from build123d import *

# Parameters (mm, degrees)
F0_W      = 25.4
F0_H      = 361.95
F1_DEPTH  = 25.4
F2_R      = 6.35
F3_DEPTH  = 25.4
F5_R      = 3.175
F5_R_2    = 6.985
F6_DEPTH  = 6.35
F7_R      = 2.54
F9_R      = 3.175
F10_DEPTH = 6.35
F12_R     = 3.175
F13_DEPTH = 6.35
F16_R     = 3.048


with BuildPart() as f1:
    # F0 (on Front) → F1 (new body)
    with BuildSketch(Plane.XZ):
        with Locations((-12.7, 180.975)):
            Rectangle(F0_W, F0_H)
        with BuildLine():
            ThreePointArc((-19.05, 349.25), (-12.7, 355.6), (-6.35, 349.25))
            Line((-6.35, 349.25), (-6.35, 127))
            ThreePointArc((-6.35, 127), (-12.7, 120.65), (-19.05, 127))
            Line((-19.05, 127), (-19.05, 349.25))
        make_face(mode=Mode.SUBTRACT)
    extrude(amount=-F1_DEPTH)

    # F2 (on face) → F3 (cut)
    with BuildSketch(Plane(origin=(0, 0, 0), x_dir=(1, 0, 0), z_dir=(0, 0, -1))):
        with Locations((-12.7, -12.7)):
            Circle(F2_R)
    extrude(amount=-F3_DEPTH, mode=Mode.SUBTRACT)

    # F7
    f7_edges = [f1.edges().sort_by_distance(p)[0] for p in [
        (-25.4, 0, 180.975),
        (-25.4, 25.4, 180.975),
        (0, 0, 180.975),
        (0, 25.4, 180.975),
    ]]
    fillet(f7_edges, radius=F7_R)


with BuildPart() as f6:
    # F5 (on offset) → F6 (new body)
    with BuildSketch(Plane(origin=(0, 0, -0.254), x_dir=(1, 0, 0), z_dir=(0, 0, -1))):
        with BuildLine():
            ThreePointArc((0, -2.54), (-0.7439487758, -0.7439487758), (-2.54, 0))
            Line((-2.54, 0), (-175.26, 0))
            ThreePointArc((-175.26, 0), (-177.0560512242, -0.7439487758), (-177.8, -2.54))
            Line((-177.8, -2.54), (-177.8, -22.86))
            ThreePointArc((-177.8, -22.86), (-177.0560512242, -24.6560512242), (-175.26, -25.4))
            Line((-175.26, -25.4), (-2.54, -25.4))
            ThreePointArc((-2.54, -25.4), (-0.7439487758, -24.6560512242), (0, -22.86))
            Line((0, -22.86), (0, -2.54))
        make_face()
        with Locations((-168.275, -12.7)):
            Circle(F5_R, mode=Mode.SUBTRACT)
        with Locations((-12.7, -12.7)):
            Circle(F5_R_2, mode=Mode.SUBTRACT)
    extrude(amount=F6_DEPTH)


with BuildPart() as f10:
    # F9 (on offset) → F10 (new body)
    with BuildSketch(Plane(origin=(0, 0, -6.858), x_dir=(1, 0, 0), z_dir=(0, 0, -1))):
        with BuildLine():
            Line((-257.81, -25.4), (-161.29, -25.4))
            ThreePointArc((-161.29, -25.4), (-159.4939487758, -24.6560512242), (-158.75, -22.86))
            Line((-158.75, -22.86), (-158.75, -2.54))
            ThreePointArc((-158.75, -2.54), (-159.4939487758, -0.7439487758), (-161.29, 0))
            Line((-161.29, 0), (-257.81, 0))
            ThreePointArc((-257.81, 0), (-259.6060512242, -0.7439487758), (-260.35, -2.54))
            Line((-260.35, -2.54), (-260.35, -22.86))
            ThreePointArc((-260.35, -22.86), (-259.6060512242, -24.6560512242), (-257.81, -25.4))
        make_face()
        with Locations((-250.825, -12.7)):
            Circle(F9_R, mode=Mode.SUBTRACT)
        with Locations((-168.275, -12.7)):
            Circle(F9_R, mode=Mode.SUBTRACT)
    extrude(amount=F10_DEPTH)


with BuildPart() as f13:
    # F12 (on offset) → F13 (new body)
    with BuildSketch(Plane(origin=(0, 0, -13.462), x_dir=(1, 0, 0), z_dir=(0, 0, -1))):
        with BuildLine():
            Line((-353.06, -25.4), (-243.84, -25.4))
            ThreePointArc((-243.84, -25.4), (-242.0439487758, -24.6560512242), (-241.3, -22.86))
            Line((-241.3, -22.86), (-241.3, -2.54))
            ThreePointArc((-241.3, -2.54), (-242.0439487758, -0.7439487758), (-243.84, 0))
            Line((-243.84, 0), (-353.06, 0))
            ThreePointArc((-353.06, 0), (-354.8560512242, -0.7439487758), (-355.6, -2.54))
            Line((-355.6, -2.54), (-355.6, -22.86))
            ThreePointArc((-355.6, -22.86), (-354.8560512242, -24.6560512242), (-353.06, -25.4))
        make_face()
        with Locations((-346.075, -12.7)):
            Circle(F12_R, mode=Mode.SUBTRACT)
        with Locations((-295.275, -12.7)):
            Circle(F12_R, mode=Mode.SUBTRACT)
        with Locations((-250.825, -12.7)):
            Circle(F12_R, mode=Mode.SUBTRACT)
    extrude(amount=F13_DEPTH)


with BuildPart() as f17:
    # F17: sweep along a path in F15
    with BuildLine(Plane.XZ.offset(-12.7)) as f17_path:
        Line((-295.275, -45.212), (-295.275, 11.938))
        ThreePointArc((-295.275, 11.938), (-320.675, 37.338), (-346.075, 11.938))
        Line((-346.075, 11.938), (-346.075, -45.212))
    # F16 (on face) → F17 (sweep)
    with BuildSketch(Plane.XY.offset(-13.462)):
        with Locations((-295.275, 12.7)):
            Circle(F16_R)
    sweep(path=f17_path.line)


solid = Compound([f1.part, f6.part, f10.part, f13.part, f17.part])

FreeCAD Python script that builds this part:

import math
import FreeCAD as App
import Part
import Sketcher
Q = App.Units.Quantity


def edges_at(feature, points):
    """Names of the edges that pass closest to the given points."""
    edges = feature.Shape.Edges
    near = lambda p: min(range(len(edges)), key=lambda i: edges[i].distToShape(Part.Vertex(*p))[0])
    return sorted({f"Edge{near(p) + 1}" for p in points})


def add_polygon(sketch, points):
    """Adds a closed chain of lines whose ends are joined by coincident constraints."""
    first, n = sketch.GeometryCount, len(points)
    for a, b in zip(points, points[1:] + points[:1]):
        sketch.addGeometry(Part.LineSegment(App.Vector(*a, 0), App.Vector(*b, 0)), False)
    for i in range(n):
        sketch.addConstraint(Sketcher.Constraint("Coincident", first + i, 2, first + (i + 1) % n, 1))

doc = App.newDocument("Part")
body = doc.addObject("PartDesign::Body", "Body")

sketch1 = body.newObject("Sketcher::SketchObject", "Sketch")
sketch1.AttachmentSupport = (doc.getObject("XZ_Plane"), [""])
sketch1.MapMode = "FlatFace"
add_polygon(sketch1, [(-25.4, 361.95), (-25.4, 0), (0, 0), (0, 361.95)])
sketch1.addGeometry(Part.LineSegment(App.Vector(-19.05, 127, 0), App.Vector(-19.05, 349.25, 0)), False)
sketch1.addGeometry(Part.ArcOfCircle(Part.Circle(App.Vector(-12.7, 349.25, 0), App.Vector(0, 0, 1), 6.35), math.radians(0), math.radians(180)), False)
sketch1.addGeometry(Part.LineSegment(App.Vector(-6.35, 349.25, 0), App.Vector(-6.35, 127, 0)), False)
sketch1.addGeometry(Part.ArcOfCircle(Part.Circle(App.Vector(-12.7, 127, 0), App.Vector(0, 0, 1), 6.35), math.radians(180), math.radians(360)), False)
sketch1.addConstraint([
    Sketcher.Constraint("Tangent", 4, 2, 5, 2),
    Sketcher.Constraint("Tangent", 5, 1, 6, 1),
    Sketcher.Constraint("Tangent", 6, 2, 7, 2),
    Sketcher.Constraint("Tangent", 7, 1, 4, 1),
    Sketcher.Constraint("Vertical", 0),
    Sketcher.Constraint("Horizontal", 1),
    Sketcher.Constraint("Vertical", 2),
    Sketcher.Constraint("Horizontal", 3),
    Sketcher.Constraint("Vertical", 4),
    Sketcher.Constraint("Vertical", 6),
    Sketcher.Constraint("Coincident", 1, 2, -1, 1),
    Sketcher.Constraint("DistanceX", 1, 1, 1, 2, Q("1 in")),
    Sketcher.Constraint("Radius", 5, Q("0.25 in")),
    Sketcher.Constraint("DistanceY", -1, 1, 7, 3, Q("5 in")),
    Sketcher.Constraint("DistanceY", 0, 2, 0, 1, Q("14.25 in")),
    Sketcher.Constraint("DistanceY", 4, 1, 4, 2, Q("8.75 in")),
    Sketcher.Constraint("DistanceX", 5, 3, -1, 1, Q("0.5 in")),
])
pad1 = body.newObject("PartDesign::Pad", "Pad")
pad1.Profile = sketch1
pad1.Length = Q("1 in")
pad1.Reversed = True

sketch2 = body.newObject("Sketcher::SketchObject", "Sketch001")
sketch2.AttachmentSupport = (doc.getObject("XY_Plane"), [""])
sketch2.MapMode = "FlatFace"
sketch2.addGeometry(Part.Circle(App.Vector(-12.7, 12.7, 0), App.Vector(0, 0, 1), 6.35), False)
sketch2.addConstraint([
    Sketcher.Constraint("Diameter", 0, Q("0.5 in")),
    Sketcher.Constraint("DistanceX", 0, 3, -1, 1, Q("0.5 in")),
    Sketcher.Constraint("DistanceY", -1, 1, 0, 3, Q("0.5 in")),
])
pocket1 = body.newObject("PartDesign::Pocket", "Pocket")
pocket1.Profile = sketch2
pocket1.Length = Q("1 in")
pocket1.Reversed = True
doc.recompute()

fillet = body.newObject("PartDesign::Fillet", "Fillet")
fillet.Base = (pocket1, edges_at(pocket1, [
    (-25.4, 0, 180.975),
    (-25.4, 25.4, 180.975),
    (0, 0, 180.975),
    (0, 25.4, 180.975),
]))
fillet.Radius = Q("0.1 in")
body2 = doc.addObject("PartDesign::Body", "Body001")

sketch3 = body2.newObject("Sketcher::SketchObject", "Sketch002")
sketch3.AttachmentSupport = (doc.getObject("XY_Plane001"), [""])
sketch3.MapMode = "FlatFace"
sketch3.AttachmentOffset = App.Placement(App.Vector(0, 0, -0.01 * 25.4), App.Rotation())
sketch3.addGeometry([
    Part.ArcOfCircle(Part.Circle(App.Vector(-2.54, 2.54, 0), App.Vector(0, 0, 1), 2.54), math.radians(-90), math.radians(0)),
    Part.LineSegment(App.Vector(-2.54, 0, 0), App.Vector(-175.26, 0, 0)),
    Part.ArcOfCircle(Part.Circle(App.Vector(-175.26, 2.54, 0), App.Vector(0, 0, 1), 2.54), math.radians(180), math.radians(270)),
    Part.LineSegment(App.Vector(-177.8, 2.54, 0), App.Vector(-177.8, 22.86, 0)),
    Part.ArcOfCircle(Part.Circle(App.Vector(-175.26, 22.86, 0), App.Vector(0, 0, 1), 2.54), math.radians(90), math.radians(180)),
    Part.LineSegment(App.Vector(-175.26, 25.4, 0), App.Vector(-2.54, 25.4, 0)),
    Part.ArcOfCircle(Part.Circle(App.Vector(-2.54, 22.86, 0), App.Vector(0, 0, 1), 2.54), math.radians(0), math.radians(90)),
    Part.LineSegment(App.Vector(0, 22.86, 0), App.Vector(0, 2.54, 0)),
    Part.Circle(App.Vector(-168.275, 12.7, 0), App.Vector(0, 0, 1), 3.175),
    Part.Circle(App.Vector(-12.7, 12.7, 0), App.Vector(0, 0, 1), 6.985),
], False)
sketch3.addConstraint([
    Sketcher.Constraint("Tangent", 0, 1, 1, 1),
    Sketcher.Constraint("Tangent", 1, 2, 2, 2),
    Sketcher.Constraint("Tangent", 2, 1, 3, 1),
    Sketcher.Constraint("Tangent", 3, 2, 4, 2),
    Sketcher.Constraint("Tangent", 4, 1, 5, 1),
    Sketcher.Constraint("Tangent", 5, 2, 6, 2),
    Sketcher.Constraint("Tangent", 6, 1, 7, 1),
    Sketcher.Constraint("Tangent", 7, 2, 0, 2),
    Sketcher.Constraint("Horizontal", 1),
    Sketcher.Constraint("Vertical", 3),
    Sketcher.Constraint("Horizontal", 5),
    Sketcher.Constraint("Vertical", 7),
    Sketcher.Constraint("Equal", 0, 2),
    Sketcher.Constraint("Equal", 2, 4),
    Sketcher.Constraint("Equal", 4, 6),
    Sketcher.Constraint("PointOnObject", 0, 1, -1),
    Sketcher.Constraint("PointOnObject", 6, 1, -2),
    Sketcher.Constraint("Horizontal", 8, 3, 9, 3),
    Sketcher.Constraint("Radius", 0, Q("0.1 in")),
    Sketcher.Constraint("Diameter", 8, Q("0.25 in")),
    Sketcher.Constraint("Diameter", 9, Q("0.55 in")),
    Sketcher.Constraint("DistanceX", 1, 2, 1, 1, Q("6.8 in")),
    Sketcher.Constraint("DistanceY", 3, 1, 3, 2, Q("0.8 in")),
    Sketcher.Constraint("DistanceY", -1, 1, 8, 3, Q("0.5 in")),
    Sketcher.Constraint("DistanceX", 9, 3, -1, 1, Q("0.5 in")),
    Sketcher.Constraint("DistanceX", 8, 3, -1, 1, Q("6.625 in")),
])
pad2 = body2.newObject("PartDesign::Pad", "Pad001")
pad2.Profile = sketch3
pad2.Length = Q("0.25 in")
pad2.Reversed = True
body3 = doc.addObject("PartDesign::Body", "Body002")

sketch4 = body3.newObject("Sketcher::SketchObject", "Sketch003")
sketch4.AttachmentSupport = (doc.getObject("XY_Plane002"), [""])
sketch4.MapMode = "FlatFace"
sketch4.AttachmentOffset = App.Placement(App.Vector(0, 0, -0.27 * 25.4), App.Rotation())
sketch4.addGeometry([
    Part.LineSegment(App.Vector(-257.81, 25.4, 0), App.Vector(-161.29, 25.4, 0)),
    Part.ArcOfCircle(Part.Circle(App.Vector(-161.29, 22.86, 0), App.Vector(0, 0, 1), 2.54), math.radians(0), math.radians(90)),
    Part.LineSegment(App.Vector(-158.75, 22.86, 0), App.Vector(-158.75, 2.54, 0)),
    Part.ArcOfCircle(Part.Circle(App.Vector(-161.29, 2.54, 0), App.Vector(0, 0, 1), 2.54), math.radians(-90), math.radians(0)),
    Part.LineSegment(App.Vector(-161.29, 0, 0), App.Vector(-257.81, 0, 0)),
    Part.ArcOfCircle(Part.Circle(App.Vector(-257.81, 2.54, 0), App.Vector(0, 0, 1), 2.54), math.radians(180), math.radians(270)),
    Part.LineSegment(App.Vector(-260.35, 2.54, 0), App.Vector(-260.35, 22.86, 0)),
    Part.ArcOfCircle(Part.Circle(App.Vector(-257.81, 22.86, 0), App.Vector(0, 0, 1), 2.54), math.radians(90), math.radians(180)),
    Part.Circle(App.Vector(-250.825, 12.7, 0), App.Vector(0, 0, 1), 3.175),
    Part.Circle(App.Vector(-168.275, 12.7, 0), App.Vector(0, 0, 1), 3.175),
], False)
sketch4.addConstraint([
    Sketcher.Constraint("Tangent", 0, 2, 1, 2),
    Sketcher.Constraint("Tangent", 1, 1, 2, 1),
    Sketcher.Constraint("Tangent", 2, 2, 3, 2),
    Sketcher.Constraint("Tangent", 3, 1, 4, 1),
    Sketcher.Constraint("Tangent", 4, 2, 5, 2),
    Sketcher.Constraint("Tangent", 5, 1, 6, 1),
    Sketcher.Constraint("Tangent", 6, 2, 7, 2),
    Sketcher.Constraint("Tangent", 7, 1, 0, 1),
    Sketcher.Constraint("Horizontal", 0),
    Sketcher.Constraint("Vertical", 2),
    Sketcher.Constraint("Horizontal", 4),
    Sketcher.Constraint("Vertical", 6),
    Sketcher.Constraint("Equal", 1, 3),
    Sketcher.Constraint("Equal", 3, 5),
    Sketcher.Constraint("Equal", 5, 7),
    Sketcher.Constraint("Equal", 8, 9),
    Sketcher.Constraint("PointOnObject", 3, 1, -1),
    Sketcher.Constraint("Horizontal", 8, 3, 9, 3),
    Sketcher.Constraint("Radius", 1, Q("0.1 in")),
    Sketcher.Constraint("Diameter", 8, Q("0.25 in")),
    Sketcher.Constraint("DistanceX", 0, 1, 0, 2, Q("3.8 in")),
    Sketcher.Constraint("DistanceY", 2, 2, 2, 1, Q("0.8 in")),
    Sketcher.Constraint("DistanceY", -1, 1, 8, 3, Q("0.5 in")),
    Sketcher.Constraint("DistanceX", 1, 3, -1, 1, Q("6.35 in")),
    Sketcher.Constraint("DistanceX", 8, 3, 9, 3, Q("3.25 in")),
    Sketcher.Constraint("DistanceX", 8, 3, -1, 1, Q("9.875 in")),
])
pad3 = body3.newObject("PartDesign::Pad", "Pad002")
pad3.Profile = sketch4
pad3.Length = Q("0.25 in")
pad3.Reversed = True
body4 = doc.addObject("PartDesign::Body", "Body003")

sketch5 = body4.newObject("Sketcher::SketchObject", "Sketch004")
sketch5.AttachmentSupport = (doc.getObject("XY_Plane003"), [""])
sketch5.MapMode = "FlatFace"
sketch5.AttachmentOffset = App.Placement(App.Vector(0, 0, -0.53 * 25.4), App.Rotation())
sketch5.addGeometry([
    Part.LineSegment(App.Vector(-353.06, 25.4, 0), App.Vector(-243.84, 25.4, 0)),
    Part.ArcOfCircle(Part.Circle(App.Vector(-243.84, 22.86, 0), App.Vector(0, 0, 1), 2.54), math.radians(0), math.radians(90)),
    Part.LineSegment(App.Vector(-241.3, 22.86, 0), App.Vector(-241.3, 2.54, 0)),
    Part.ArcOfCircle(Part.Circle(App.Vector(-243.84, 2.54, 0), App.Vector(0, 0, 1), 2.54), math.radians(-90), math.radians(0)),
    Part.LineSegment(App.Vector(-243.84, 0, 0), App.Vector(-353.06, 0, 0)),
    Part.ArcOfCircle(Part.Circle(App.Vector(-353.06, 2.54, 0), App.Vector(0, 0, 1), 2.54), math.radians(180), math.radians(270)),
    Part.LineSegment(App.Vector(-355.6, 2.54, 0), App.Vector(-355.6, 22.86, 0)),
    Part.ArcOfCircle(Part.Circle(App.Vector(-353.06, 22.86, 0), App.Vector(0, 0, 1), 2.54), math.radians(90), math.radians(180)),
    Part.Circle(App.Vector(-346.075, 12.7, 0), App.Vector(0, 0, 1), 3.175),
    Part.Circle(App.Vector(-295.275, 12.7, 0), App.Vector(0, 0, 1), 3.175),
    Part.Circle(App.Vector(-250.825, 12.7, 0), App.Vector(0, 0, 1), 3.175),
], False)
sketch5.addConstraint([
    Sketcher.Constraint("Tangent", 0, 2, 1, 2),
    Sketcher.Constraint("Tangent", 1, 1, 2, 1),
    Sketcher.Constraint("Tangent", 2, 2, 3, 2),
    Sketcher.Constraint("Tangent", 3, 1, 4, 1),
    Sketcher.Constraint("Tangent", 4, 2, 5, 2),
    Sketcher.Constraint("Tangent", 5, 1, 6, 1),
    Sketcher.Constraint("Tangent", 6, 2, 7, 2),
    Sketcher.Constraint("Tangent", 7, 1, 0, 1),
    Sketcher.Constraint("Horizontal", 0),
    Sketcher.Constraint("Vertical", 2),
    Sketcher.Constraint("Horizontal", 4),
    Sketcher.Constraint("Vertical", 6),
    Sketcher.Constraint("Equal", 1, 3),
    Sketcher.Constraint("Equal", 3, 5),
    Sketcher.Constraint("Equal", 5, 7),
    Sketcher.Constraint("Equal", 8, 9),
    Sketcher.Constraint("Equal", 9, 10),
    Sketcher.Constraint("PointOnObject", 3, 1, -1),
    Sketcher.Constraint("Horizontal", 8, 3, 9, 3),
    Sketcher.Constraint("Horizontal", 9, 3, 10, 3),
    Sketcher.Constraint("Radius", 1, Q("0.1 in")),
    Sketcher.Constraint("Diameter", 8, Q("0.25 in")),
    Sketcher.Constraint("DistanceX", 0, 1, 0, 2, Q("4.3 in")),
    Sketcher.Constraint("DistanceY", 2, 2, 2, 1, Q("0.8 in")),
    Sketcher.Constraint("DistanceX", 5, 1, -1, 1, Q("14 in")),
    Sketcher.Constraint("DistanceX", 8, 3, 9, 3, Q("2 in")),
    Sketcher.Constraint("DistanceY", -1, 1, 8, 3, Q("0.5 in")),
    Sketcher.Constraint("DistanceX", 9, 3, 10, 3, Q("1.75 in")),
    Sketcher.Constraint("DistanceX", 8, 3, -1, 1, Q("13.625 in")),
])
pad4 = body4.newObject("PartDesign::Pad", "Pad003")
pad4.Profile = sketch5
pad4.Length = Q("0.25 in")
pad4.Reversed = True
body5 = doc.addObject("PartDesign::Body", "Body004")

sketch6 = body5.newObject("Sketcher::SketchObject", "Sketch005")
sketch6.AttachmentSupport = (doc.getObject("XY_Plane004"), [""])
sketch6.MapMode = "FlatFace"
sketch6.AttachmentOffset = App.Placement(App.Vector(0, 0, -0.53 * 25.4), App.Rotation())
sketch6.addGeometry(Part.Circle(App.Vector(-295.275, 12.7, 0), App.Vector(0, 0, 1), 3.048), False)
sketch6.addConstraint([
    Sketcher.Constraint("Diameter", 0, Q("0.24 in")),
    Sketcher.Constraint("DistanceY", -1, 1, 0, 3, Q("0.5 in")),
    Sketcher.Constraint("DistanceX", 0, 3, -1, 1, Q("11.625 in")),
])

sketch7 = body5.newObject("Sketcher::SketchObject", "Sketch006")
sketch7.AttachmentSupport = (doc.getObject("XZ_Plane004"), [""])
sketch7.MapMode = "FlatFace"
sketch7.AttachmentOffset = App.Placement(App.Vector(0, 0, -0.5 * 25.4), App.Rotation())
sketch7.addGeometry([
    Part.LineSegment(App.Vector(-295.275, -45.212, 0), App.Vector(-295.275, 11.938, 0)),
    Part.ArcOfCircle(Part.Circle(App.Vector(-320.675, 11.938, 0), App.Vector(0, 0, 1), 25.4), math.radians(0), math.radians(180)),
    Part.LineSegment(App.Vector(-346.075, 11.938, 0), App.Vector(-346.075, -45.212, 0)),
], False)
sketch7.addConstraint([
    Sketcher.Constraint("Tangent", 0, 2, 1, 1),
    Sketcher.Constraint("Tangent", 1, 2, 2, 1),
    Sketcher.Constraint("Vertical", 0),
    Sketcher.Constraint("Vertical", 2),
    Sketcher.Constraint("Horizontal", 0, 1, 2, 2),
    Sketcher.Constraint("Radius", 1, Q("1 in")),
    Sketcher.Constraint("DistanceY", 0, 1, 0, 2, Q("2.25 in")),
    Sketcher.Constraint("DistanceY", -1, 1, 1, 3, Q("0.47 in")),
    Sketcher.Constraint("DistanceX", 1, 3, -1, 1, Q("12.625 in")),
])
doc.recompute()

additivepipe = body5.newObject("PartDesign::AdditivePipe", "AdditivePipe")
additivepipe.Profile = sketch6
additivepipe.Spine = (sketch7, ["Edge1", "Edge2", "Edge3"])

doc.recompute()
